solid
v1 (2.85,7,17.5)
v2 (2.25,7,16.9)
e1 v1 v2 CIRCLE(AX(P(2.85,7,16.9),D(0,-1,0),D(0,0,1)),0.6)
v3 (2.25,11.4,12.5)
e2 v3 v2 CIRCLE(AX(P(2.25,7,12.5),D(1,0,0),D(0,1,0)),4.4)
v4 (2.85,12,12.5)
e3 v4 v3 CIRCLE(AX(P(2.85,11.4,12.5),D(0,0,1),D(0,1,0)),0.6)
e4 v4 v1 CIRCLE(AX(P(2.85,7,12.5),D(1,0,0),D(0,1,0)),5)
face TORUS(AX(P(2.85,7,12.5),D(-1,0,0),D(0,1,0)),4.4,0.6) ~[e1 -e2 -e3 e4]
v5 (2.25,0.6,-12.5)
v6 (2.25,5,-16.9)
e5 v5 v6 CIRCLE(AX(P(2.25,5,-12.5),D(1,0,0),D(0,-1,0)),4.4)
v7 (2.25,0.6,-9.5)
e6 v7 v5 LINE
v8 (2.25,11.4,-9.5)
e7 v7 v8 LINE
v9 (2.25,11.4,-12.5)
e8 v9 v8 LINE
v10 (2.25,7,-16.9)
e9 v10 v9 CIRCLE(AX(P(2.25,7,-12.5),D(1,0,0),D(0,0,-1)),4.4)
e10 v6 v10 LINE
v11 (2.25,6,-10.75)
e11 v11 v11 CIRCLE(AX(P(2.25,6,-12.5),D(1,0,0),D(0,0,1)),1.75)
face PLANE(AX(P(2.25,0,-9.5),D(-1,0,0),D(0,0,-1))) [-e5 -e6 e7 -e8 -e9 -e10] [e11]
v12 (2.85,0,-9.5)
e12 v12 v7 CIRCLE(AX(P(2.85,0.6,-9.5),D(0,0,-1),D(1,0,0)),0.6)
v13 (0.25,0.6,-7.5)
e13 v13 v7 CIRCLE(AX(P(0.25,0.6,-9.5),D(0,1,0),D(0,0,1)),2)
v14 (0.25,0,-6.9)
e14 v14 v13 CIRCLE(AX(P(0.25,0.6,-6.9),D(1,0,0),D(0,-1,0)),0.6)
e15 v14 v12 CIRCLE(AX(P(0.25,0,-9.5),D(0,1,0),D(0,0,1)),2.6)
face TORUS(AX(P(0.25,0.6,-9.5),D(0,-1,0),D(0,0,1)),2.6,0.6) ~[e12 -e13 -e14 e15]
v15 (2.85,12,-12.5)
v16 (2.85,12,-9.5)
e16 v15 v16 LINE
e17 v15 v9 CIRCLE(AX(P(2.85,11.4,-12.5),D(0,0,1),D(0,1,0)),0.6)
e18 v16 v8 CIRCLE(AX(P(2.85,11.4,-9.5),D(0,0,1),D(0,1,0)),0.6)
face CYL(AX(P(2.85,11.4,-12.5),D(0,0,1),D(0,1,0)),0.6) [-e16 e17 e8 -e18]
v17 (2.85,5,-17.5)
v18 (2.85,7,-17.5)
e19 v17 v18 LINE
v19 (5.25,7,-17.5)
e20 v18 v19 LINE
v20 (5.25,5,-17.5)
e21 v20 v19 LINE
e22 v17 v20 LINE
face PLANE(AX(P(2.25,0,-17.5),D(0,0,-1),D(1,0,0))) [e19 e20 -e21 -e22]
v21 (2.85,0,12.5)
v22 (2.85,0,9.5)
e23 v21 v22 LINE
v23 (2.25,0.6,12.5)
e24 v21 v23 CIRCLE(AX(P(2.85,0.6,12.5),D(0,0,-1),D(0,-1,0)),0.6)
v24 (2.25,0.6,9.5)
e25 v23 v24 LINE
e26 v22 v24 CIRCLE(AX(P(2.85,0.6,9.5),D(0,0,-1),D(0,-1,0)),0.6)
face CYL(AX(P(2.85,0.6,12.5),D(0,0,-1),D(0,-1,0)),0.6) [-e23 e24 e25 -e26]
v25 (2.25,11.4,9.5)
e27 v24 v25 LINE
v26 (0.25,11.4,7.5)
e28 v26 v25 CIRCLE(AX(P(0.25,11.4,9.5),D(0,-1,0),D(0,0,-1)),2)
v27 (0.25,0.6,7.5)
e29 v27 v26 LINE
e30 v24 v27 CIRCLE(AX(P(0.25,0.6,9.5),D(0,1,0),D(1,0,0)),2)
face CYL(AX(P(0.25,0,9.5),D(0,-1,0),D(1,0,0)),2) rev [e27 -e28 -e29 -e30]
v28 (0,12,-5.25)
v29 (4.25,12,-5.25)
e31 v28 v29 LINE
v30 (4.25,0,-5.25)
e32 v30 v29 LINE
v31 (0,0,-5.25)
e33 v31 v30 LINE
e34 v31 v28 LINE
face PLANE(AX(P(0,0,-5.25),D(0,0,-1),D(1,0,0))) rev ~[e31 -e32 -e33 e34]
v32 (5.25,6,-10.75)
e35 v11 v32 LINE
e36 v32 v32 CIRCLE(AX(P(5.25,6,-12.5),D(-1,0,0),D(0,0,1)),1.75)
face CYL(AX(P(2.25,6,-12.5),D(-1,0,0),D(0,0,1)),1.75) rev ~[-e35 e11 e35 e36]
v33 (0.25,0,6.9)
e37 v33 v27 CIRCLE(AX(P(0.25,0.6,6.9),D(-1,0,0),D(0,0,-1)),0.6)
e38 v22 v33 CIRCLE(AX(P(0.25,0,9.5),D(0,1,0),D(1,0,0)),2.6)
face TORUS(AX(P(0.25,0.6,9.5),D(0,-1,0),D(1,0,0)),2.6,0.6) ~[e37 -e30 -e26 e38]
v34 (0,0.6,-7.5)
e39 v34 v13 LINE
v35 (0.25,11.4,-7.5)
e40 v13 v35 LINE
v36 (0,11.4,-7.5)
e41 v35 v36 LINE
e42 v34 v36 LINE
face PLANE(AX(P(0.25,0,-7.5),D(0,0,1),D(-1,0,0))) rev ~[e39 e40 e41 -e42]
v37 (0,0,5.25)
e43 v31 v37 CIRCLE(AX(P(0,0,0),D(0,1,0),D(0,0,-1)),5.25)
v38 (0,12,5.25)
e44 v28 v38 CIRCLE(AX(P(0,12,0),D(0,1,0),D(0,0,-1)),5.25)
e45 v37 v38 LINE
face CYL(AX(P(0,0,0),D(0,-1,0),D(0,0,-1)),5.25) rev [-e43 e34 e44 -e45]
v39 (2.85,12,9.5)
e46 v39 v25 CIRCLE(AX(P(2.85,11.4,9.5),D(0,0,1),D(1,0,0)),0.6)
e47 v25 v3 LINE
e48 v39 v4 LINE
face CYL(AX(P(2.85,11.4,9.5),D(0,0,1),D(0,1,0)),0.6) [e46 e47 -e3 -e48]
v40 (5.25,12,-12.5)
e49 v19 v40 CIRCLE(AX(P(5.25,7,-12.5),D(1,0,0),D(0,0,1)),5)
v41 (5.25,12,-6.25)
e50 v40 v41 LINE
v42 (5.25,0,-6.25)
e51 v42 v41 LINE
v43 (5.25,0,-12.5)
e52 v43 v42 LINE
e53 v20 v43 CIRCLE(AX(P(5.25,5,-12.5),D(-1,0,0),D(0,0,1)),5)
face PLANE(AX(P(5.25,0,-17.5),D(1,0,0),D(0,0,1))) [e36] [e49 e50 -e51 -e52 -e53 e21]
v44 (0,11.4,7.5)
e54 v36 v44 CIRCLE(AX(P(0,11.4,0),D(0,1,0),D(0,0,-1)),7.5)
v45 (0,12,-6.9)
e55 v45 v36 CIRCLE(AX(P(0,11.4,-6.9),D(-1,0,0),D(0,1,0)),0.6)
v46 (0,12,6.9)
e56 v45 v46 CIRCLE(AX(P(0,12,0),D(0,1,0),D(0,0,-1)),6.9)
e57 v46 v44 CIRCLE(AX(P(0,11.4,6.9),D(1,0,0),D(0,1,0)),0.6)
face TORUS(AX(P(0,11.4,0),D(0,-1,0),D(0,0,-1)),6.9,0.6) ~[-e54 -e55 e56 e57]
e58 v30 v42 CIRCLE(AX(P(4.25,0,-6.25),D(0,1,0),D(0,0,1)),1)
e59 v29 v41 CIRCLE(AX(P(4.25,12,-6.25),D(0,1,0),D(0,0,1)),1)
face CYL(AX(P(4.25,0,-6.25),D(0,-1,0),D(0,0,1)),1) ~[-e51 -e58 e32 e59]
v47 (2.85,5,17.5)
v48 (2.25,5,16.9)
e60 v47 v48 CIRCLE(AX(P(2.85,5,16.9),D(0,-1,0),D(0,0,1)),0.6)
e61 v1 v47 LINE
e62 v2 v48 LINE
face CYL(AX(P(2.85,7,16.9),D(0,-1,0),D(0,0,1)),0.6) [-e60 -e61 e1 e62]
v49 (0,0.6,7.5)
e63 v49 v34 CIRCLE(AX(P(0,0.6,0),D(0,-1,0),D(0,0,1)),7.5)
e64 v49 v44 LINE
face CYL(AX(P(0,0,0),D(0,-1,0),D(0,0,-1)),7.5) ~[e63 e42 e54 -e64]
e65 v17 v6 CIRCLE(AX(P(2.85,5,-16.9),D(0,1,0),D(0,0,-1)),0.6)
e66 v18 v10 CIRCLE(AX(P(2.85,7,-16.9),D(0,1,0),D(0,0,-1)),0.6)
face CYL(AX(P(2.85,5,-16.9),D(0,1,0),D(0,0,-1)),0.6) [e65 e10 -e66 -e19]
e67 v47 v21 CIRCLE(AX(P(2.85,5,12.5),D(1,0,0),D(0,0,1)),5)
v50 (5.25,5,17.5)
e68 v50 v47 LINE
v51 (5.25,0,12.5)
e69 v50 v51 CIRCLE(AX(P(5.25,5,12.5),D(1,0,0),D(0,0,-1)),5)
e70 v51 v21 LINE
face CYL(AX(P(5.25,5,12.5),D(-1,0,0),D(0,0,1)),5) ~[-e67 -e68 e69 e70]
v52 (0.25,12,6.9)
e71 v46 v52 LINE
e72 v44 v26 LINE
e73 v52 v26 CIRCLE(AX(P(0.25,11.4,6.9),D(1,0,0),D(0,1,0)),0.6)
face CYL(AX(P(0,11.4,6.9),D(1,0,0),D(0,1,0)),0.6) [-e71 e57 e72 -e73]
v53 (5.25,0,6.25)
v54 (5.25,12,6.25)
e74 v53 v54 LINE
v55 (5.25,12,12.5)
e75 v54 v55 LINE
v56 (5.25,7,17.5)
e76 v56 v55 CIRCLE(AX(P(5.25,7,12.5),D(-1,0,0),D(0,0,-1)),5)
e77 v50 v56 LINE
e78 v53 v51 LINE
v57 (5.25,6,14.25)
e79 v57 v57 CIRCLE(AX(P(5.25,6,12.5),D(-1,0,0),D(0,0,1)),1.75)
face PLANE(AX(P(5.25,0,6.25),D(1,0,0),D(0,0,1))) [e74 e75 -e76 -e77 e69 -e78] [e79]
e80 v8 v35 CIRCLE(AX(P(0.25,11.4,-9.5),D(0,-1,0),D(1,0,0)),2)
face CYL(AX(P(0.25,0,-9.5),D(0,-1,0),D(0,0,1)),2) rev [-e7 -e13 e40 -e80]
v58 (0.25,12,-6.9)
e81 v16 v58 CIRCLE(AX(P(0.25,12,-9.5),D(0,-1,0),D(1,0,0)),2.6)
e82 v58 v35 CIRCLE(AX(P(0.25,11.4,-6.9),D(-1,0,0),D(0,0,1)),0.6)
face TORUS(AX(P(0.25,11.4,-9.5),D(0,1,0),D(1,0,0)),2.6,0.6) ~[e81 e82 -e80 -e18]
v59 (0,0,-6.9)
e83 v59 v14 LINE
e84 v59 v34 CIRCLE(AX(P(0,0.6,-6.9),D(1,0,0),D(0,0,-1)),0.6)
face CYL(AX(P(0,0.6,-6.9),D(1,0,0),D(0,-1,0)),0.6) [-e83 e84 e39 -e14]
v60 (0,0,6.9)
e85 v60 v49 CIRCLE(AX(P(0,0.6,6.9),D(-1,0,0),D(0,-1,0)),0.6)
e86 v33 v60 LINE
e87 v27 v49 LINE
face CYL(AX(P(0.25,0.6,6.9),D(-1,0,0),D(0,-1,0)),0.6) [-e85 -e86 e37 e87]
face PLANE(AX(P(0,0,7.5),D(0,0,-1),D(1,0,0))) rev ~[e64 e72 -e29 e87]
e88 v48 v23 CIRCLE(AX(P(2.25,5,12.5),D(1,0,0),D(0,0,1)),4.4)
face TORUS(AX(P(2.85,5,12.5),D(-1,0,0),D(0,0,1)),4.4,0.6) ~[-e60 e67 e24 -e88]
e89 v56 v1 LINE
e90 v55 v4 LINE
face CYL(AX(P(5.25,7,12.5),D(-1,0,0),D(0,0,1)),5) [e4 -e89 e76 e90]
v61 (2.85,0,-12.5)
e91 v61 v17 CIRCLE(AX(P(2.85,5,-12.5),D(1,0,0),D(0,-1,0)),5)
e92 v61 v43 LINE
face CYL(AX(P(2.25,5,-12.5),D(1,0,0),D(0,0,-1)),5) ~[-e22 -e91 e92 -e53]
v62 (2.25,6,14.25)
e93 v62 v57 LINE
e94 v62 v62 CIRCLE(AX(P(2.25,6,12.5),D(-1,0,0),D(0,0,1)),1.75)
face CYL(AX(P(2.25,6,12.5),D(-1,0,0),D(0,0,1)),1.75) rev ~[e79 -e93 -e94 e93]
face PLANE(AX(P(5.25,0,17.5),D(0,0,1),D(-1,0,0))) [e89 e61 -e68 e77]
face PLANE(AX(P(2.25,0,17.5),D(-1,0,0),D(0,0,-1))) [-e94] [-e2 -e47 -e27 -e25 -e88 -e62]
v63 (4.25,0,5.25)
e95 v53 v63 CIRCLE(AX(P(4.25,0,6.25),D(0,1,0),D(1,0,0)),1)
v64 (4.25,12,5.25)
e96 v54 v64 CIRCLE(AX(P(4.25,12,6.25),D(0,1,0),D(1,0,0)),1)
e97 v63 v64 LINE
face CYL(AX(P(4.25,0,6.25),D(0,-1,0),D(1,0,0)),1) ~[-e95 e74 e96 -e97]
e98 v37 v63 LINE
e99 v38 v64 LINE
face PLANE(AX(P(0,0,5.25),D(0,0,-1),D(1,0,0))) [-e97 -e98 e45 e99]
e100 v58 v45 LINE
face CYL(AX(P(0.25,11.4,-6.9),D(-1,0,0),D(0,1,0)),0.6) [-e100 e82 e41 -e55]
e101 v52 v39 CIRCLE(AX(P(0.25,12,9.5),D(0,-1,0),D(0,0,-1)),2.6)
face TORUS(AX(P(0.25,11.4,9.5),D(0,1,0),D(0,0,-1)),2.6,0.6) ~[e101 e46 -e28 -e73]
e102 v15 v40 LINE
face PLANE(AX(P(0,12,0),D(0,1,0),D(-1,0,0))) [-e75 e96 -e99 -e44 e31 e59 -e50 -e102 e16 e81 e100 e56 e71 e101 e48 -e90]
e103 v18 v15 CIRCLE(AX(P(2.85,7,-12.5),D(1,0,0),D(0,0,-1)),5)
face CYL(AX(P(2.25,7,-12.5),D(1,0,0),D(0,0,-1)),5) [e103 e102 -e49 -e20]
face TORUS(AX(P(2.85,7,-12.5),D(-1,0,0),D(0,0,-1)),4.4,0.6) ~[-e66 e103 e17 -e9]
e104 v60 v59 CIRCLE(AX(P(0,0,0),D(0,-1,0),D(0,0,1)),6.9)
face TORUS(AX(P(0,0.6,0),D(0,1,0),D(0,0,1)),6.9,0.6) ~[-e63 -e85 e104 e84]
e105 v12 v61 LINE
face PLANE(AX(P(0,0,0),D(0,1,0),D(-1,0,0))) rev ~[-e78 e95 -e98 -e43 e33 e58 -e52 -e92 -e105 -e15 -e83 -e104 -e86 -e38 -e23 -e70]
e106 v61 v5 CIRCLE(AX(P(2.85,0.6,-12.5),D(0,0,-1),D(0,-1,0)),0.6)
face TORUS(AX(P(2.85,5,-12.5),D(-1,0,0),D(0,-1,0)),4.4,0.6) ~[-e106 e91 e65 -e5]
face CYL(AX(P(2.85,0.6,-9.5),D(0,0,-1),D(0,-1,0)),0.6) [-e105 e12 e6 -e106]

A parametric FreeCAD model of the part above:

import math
import FreeCAD as App
import Part
import Sketcher
Q = App.Units.Quantity


def edges_at(feature, points):
    """Names of the edges that pass closest to the given points."""
    edges = feature.Shape.Edges
    near = lambda p: min(range(len(edges)), key=lambda i: edges[i].distToShape(Part.Vertex(*p))[0])
    return sorted({f"Edge{near(p) + 1}" for p in points})

doc = App.newDocument("Part")
body = doc.addObject("PartDesign::Body", "Body")

sketch1 = body.newObject("Sketcher::SketchObject", "Sketch")
sketch1.AttachmentSupport = (doc.getObject("XZ_Plane"), [""])
sketch1.MapMode = "FlatFace"
sketch1.addGeometry(Part.ArcOfCircle(Part.Circle(App.Vector(0, 0, 0), App.Vector(0, 0, 1), 5.25), math.radians(90), math.radians(270)), False)
sketch1.addGeometry(Part.LineSegment(App.Vector(0, -5.25, 0), App.Vector(4.25, -5.25, 0)), False)
sketch1.addGeometry(Part.ArcOfCircle(Part.Circle(App.Vector(4.25, -6.25, 0), App.Vector(0, 0, 1), 1), math.radians(0), math.radians(90)), False)
sketch1.addGeometry(Part.LineSegment(App.Vector(5.25, -6.25, 0), App.Vector(5.25, -17.5, 0)), False)
sketch1.addGeometry(Part.LineSegment(App.Vector(5.25, -17.5, 0), App.Vector(2.25, -17.5, 0)), False)
sketch1.addGeometry(Part.LineSegment(App.Vector(2.25, -17.5, 0), App.Vector(2.25, -9.5, 0)), False)
sketch1.addGeometry(Part.ArcOfCircle(Part.Circle(App.Vector(0.25, -9.5, 0), App.Vector(0, 0, 1), 2), math.radians(0), math.radians(90)), False)
sketch1.addGeometry(Part.LineSegment(App.Vector(0.25, -7.5, 0), App.Vector(0, -7.5, 0)), False)
sketch1.addGeometry(Part.ArcOfCircle(Part.Circle(App.Vector(0, 0, 0), App.Vector(0, 0, 1), 7.5), math.radians(90), math.radians(270)), False)
sketch1.addGeometry(Part.LineSegment(App.Vector(0, 7.5, 0), App.Vector(0.25, 7.5, 0)), False)
sketch1.addGeometry(Part.ArcOfCircle(Part.Circle(App.Vector(0.25, 9.5, 0), App.Vector(0, 0, 1), 2), math.radians(-90), math.radians(0)), False)
sketch1.addGeometry(Part.LineSegment(App.Vector(2.25, 9.5, 0), App.Vector(2.25, 17.5, 0)), False)
sketch1.addGeometry(Part.LineSegment(App.Vector(2.25, 17.5, 0), App.Vector(5.25, 17.5, 0)), False)
sketch1.addGeometry(Part.LineSegment(App.Vector(5.25, 17.5, 0), App.Vector(5.25, 6.25, 0)), False)
sketch1.addGeometry(Part.ArcOfCircle(Part.Circle(App.Vector(4.25, 6.25, 0), App.Vector(0, 0, 1), 1), math.radians(-90), math.radians(0)), False)
sketch1.addGeometry(Part.LineSegment(App.Vector(4.25, 5.25, 0), App.Vector(0, 5.25, 0)), False)
sketch1.addConstraint(Sketcher.Constraint("Tangent", 0, 2, 1, 1))
sketch1.addConstraint(Sketcher.Constraint("Tangent", 1, 2, 2, 2))
sketch1.addConstraint(Sketcher.Constraint("Tangent", 2, 1, 3, 1))
sketch1.addConstraint(Sketcher.Constraint("Coincident", 3, 2, 4, 1))
sketch1.addConstraint(Sketcher.Constraint("Coincident", 4, 2, 5, 1))
sketch1.addConstraint(Sketcher.Constraint("Tangent", 5, 2, 6, 1))
sketch1.addConstraint(Sketcher.Constraint("Tangent", 6, 2, 7, 1))
sketch1.addConstraint(Sketcher.Constraint("Tangent", 7, 2, 8, 2))
sketch1.addConstraint(Sketcher.Constraint("Tangent", 8, 1, 9, 1))
sketch1.addConstraint(Sketcher.Constraint("Tangent", 9, 2, 10, 1))
sketch1.addConstraint(Sketcher.Constraint("Tangent", 10, 2, 11, 1))
sketch1.addConstraint(Sketcher.Constraint("Coincident", 11, 2, 12, 1))
sketch1.addConstraint(Sketcher.Constraint("Coincident", 12, 2, 13, 1))
sketch1.addConstraint(Sketcher.Constraint("Tangent", 13, 2, 14, 2))
sketch1.addConstraint(Sketcher.Constraint("Tangent", 14, 1, 15, 1))
sketch1.addConstraint(Sketcher.Constraint("Tangent", 15, 2, 0, 1))
sketch1.addConstraint(Sketcher.Constraint("Horizontal", 1))
sketch1.addConstraint(Sketcher.Constraint("Vertical", 3))
sketch1.addConstraint(Sketcher.Constraint("Horizontal", 4))
sketch1.addConstraint(Sketcher.Constraint("Vertical", 5))
sketch1.addConstraint(Sketcher.Constraint("Horizontal", 7))
sketch1.addConstraint(Sketcher.Constraint("Horizontal", 9))
sketch1.addConstraint(Sketcher.Constraint("Vertical", 11))
sketch1.addConstraint(Sketcher.Constraint("Horizontal", 12))
sketch1.addConstraint(Sketcher.Constraint("Vertical", 13))
sketch1.addConstraint(Sketcher.Constraint("Horizontal", 15))
sketch1.addConstraint(Sketcher.Constraint("Coincident", 0, 3, -1, 1))
sketch1.addConstraint(Sketcher.Constraint("Coincident", 8, 3, -1, 1))
sketch1.addConstraint(Sketcher.Constraint("Equal", 6, 10))
sketch1.addConstraint(Sketcher.Constraint("Equal", 2, 14))
sketch1.addConstraint(Sketcher.Constraint("Symmetric", 4, 2, 11, 2, -1))
sketch1.addConstraint(Sketcher.Constraint("Vertical", 2, 3, 14, 3))
sketch1.addConstraint(Sketcher.Constraint("Radius", 2, Q("1 mm")))
sketch1.addConstraint(Sketcher.Constraint("Radius", 6, Q("2 mm")))
sketch1.addConstraint(Sketcher.Constraint("DistanceX", 4, 2, 4, 1, Q("3 mm")))
sketch1.addConstraint(Sketcher.Constraint("Radius", 0, Q("5.25 mm")))
sketch1.addConstraint(Sketcher.Constraint("Radius", 8, Q("7.5 mm")))
sketch1.addConstraint(Sketcher.Constraint("DistanceY", 5, 1, 5, 2, Q("8 mm")))
sketch1.addConstraint(Sketcher.Constraint("DistanceX", 1, 1, 1, 2, Q("4.25 mm")))
pad1 = body.newObject("PartDesign::Pad", "Pad")
pad1.Profile = sketch1
pad1.Length = 12
pad1.Reversed = True
doc.recompute()

fillet = body.newObject("PartDesign::Fillet", "Fillet")
fillet.Base = (pad1, edges_at(pad1, [
    (3.75, 12, 17.5),
    (3.75, 0, 17.5),
    (3.75, 12, -17.5),
    (3.75, 0, -17.5),
]))
fillet.Radius = 5

sketch2 = body.newObject("Sketcher::SketchObject", "Sketch001")
sketch2.AttachmentSupport = (doc.getObject("YZ_Plane"), [""])
sketch2.MapMode = "FlatFace"
sketch2.AttachmentOffset = App.Placement(App.Vector(0, 0, 2.25), App.Rotation())
sketch2.addGeometry(Part.Circle(App.Vector(6, 12.5, 0), App.Vector(0, 0, 1), 1.75), False)
sketch2.addGeometry(Part.Circle(App.Vector(6, -12.5, 0), App.Vector(0, 0, 1), 1.75), False)
sketch2.addConstraint(Sketcher.Constraint("Equal", 0, 1))
sketch2.addConstraint(Sketcher.Constraint("Symmetric", 0, 3, 1, 3, -1))
sketch2.addConstraint(Sketcher.Constraint("Diameter", 0, Q("3.5 mm")))
sketch2.addConstraint(Sketcher.Constraint("DistanceX", -1, 1, 0, 3, Q("6 mm")))
sketch2.addConstraint(Sketcher.Constraint("DistanceY", 1, 3, 0, 3, Q("25 mm")))
pocket1 = body.newObject("PartDesign::Pocket", "Pocket")
pocket1.Profile = sketch2
pocket1.Type = "ThroughAll"
pocket1.Reversed = True
doc.recompute()

fillet2 = body.newObject("PartDesign::Fillet", "Fillet001")
fillet2.Base = (pocket1, edges_at(pocket1, [
    (0.125, 12, 7.5),
    (1.664, 12, 8.086),
    (2.25, 12, 11),
    (2.25, 10.536, 16.035),
    (2.25, 6, 17.5),
    (2.25, 1.464, 16.035),
    (2.25, 0, 11),
    (1.664, 0, 8.086),
    (0.125, 0, 7.5),
    (-7.5, 0, 0),
    (0.125, 0, -7.5),
    (1.664, 0, -8.086),
    (2.25, 0, -11),
    (2.25, 1.464, -16.035),
    (2.25, 6, -17.5),
    (2.25, 10.536, -16.035),
    (2.25, 12, -11),
    (1.664, 12, -8.086),
    (0.125, 12, -7.5),
    (-7.5, 12, 0),
]))
fillet2.Radius = 0.6

doc.recompute()
